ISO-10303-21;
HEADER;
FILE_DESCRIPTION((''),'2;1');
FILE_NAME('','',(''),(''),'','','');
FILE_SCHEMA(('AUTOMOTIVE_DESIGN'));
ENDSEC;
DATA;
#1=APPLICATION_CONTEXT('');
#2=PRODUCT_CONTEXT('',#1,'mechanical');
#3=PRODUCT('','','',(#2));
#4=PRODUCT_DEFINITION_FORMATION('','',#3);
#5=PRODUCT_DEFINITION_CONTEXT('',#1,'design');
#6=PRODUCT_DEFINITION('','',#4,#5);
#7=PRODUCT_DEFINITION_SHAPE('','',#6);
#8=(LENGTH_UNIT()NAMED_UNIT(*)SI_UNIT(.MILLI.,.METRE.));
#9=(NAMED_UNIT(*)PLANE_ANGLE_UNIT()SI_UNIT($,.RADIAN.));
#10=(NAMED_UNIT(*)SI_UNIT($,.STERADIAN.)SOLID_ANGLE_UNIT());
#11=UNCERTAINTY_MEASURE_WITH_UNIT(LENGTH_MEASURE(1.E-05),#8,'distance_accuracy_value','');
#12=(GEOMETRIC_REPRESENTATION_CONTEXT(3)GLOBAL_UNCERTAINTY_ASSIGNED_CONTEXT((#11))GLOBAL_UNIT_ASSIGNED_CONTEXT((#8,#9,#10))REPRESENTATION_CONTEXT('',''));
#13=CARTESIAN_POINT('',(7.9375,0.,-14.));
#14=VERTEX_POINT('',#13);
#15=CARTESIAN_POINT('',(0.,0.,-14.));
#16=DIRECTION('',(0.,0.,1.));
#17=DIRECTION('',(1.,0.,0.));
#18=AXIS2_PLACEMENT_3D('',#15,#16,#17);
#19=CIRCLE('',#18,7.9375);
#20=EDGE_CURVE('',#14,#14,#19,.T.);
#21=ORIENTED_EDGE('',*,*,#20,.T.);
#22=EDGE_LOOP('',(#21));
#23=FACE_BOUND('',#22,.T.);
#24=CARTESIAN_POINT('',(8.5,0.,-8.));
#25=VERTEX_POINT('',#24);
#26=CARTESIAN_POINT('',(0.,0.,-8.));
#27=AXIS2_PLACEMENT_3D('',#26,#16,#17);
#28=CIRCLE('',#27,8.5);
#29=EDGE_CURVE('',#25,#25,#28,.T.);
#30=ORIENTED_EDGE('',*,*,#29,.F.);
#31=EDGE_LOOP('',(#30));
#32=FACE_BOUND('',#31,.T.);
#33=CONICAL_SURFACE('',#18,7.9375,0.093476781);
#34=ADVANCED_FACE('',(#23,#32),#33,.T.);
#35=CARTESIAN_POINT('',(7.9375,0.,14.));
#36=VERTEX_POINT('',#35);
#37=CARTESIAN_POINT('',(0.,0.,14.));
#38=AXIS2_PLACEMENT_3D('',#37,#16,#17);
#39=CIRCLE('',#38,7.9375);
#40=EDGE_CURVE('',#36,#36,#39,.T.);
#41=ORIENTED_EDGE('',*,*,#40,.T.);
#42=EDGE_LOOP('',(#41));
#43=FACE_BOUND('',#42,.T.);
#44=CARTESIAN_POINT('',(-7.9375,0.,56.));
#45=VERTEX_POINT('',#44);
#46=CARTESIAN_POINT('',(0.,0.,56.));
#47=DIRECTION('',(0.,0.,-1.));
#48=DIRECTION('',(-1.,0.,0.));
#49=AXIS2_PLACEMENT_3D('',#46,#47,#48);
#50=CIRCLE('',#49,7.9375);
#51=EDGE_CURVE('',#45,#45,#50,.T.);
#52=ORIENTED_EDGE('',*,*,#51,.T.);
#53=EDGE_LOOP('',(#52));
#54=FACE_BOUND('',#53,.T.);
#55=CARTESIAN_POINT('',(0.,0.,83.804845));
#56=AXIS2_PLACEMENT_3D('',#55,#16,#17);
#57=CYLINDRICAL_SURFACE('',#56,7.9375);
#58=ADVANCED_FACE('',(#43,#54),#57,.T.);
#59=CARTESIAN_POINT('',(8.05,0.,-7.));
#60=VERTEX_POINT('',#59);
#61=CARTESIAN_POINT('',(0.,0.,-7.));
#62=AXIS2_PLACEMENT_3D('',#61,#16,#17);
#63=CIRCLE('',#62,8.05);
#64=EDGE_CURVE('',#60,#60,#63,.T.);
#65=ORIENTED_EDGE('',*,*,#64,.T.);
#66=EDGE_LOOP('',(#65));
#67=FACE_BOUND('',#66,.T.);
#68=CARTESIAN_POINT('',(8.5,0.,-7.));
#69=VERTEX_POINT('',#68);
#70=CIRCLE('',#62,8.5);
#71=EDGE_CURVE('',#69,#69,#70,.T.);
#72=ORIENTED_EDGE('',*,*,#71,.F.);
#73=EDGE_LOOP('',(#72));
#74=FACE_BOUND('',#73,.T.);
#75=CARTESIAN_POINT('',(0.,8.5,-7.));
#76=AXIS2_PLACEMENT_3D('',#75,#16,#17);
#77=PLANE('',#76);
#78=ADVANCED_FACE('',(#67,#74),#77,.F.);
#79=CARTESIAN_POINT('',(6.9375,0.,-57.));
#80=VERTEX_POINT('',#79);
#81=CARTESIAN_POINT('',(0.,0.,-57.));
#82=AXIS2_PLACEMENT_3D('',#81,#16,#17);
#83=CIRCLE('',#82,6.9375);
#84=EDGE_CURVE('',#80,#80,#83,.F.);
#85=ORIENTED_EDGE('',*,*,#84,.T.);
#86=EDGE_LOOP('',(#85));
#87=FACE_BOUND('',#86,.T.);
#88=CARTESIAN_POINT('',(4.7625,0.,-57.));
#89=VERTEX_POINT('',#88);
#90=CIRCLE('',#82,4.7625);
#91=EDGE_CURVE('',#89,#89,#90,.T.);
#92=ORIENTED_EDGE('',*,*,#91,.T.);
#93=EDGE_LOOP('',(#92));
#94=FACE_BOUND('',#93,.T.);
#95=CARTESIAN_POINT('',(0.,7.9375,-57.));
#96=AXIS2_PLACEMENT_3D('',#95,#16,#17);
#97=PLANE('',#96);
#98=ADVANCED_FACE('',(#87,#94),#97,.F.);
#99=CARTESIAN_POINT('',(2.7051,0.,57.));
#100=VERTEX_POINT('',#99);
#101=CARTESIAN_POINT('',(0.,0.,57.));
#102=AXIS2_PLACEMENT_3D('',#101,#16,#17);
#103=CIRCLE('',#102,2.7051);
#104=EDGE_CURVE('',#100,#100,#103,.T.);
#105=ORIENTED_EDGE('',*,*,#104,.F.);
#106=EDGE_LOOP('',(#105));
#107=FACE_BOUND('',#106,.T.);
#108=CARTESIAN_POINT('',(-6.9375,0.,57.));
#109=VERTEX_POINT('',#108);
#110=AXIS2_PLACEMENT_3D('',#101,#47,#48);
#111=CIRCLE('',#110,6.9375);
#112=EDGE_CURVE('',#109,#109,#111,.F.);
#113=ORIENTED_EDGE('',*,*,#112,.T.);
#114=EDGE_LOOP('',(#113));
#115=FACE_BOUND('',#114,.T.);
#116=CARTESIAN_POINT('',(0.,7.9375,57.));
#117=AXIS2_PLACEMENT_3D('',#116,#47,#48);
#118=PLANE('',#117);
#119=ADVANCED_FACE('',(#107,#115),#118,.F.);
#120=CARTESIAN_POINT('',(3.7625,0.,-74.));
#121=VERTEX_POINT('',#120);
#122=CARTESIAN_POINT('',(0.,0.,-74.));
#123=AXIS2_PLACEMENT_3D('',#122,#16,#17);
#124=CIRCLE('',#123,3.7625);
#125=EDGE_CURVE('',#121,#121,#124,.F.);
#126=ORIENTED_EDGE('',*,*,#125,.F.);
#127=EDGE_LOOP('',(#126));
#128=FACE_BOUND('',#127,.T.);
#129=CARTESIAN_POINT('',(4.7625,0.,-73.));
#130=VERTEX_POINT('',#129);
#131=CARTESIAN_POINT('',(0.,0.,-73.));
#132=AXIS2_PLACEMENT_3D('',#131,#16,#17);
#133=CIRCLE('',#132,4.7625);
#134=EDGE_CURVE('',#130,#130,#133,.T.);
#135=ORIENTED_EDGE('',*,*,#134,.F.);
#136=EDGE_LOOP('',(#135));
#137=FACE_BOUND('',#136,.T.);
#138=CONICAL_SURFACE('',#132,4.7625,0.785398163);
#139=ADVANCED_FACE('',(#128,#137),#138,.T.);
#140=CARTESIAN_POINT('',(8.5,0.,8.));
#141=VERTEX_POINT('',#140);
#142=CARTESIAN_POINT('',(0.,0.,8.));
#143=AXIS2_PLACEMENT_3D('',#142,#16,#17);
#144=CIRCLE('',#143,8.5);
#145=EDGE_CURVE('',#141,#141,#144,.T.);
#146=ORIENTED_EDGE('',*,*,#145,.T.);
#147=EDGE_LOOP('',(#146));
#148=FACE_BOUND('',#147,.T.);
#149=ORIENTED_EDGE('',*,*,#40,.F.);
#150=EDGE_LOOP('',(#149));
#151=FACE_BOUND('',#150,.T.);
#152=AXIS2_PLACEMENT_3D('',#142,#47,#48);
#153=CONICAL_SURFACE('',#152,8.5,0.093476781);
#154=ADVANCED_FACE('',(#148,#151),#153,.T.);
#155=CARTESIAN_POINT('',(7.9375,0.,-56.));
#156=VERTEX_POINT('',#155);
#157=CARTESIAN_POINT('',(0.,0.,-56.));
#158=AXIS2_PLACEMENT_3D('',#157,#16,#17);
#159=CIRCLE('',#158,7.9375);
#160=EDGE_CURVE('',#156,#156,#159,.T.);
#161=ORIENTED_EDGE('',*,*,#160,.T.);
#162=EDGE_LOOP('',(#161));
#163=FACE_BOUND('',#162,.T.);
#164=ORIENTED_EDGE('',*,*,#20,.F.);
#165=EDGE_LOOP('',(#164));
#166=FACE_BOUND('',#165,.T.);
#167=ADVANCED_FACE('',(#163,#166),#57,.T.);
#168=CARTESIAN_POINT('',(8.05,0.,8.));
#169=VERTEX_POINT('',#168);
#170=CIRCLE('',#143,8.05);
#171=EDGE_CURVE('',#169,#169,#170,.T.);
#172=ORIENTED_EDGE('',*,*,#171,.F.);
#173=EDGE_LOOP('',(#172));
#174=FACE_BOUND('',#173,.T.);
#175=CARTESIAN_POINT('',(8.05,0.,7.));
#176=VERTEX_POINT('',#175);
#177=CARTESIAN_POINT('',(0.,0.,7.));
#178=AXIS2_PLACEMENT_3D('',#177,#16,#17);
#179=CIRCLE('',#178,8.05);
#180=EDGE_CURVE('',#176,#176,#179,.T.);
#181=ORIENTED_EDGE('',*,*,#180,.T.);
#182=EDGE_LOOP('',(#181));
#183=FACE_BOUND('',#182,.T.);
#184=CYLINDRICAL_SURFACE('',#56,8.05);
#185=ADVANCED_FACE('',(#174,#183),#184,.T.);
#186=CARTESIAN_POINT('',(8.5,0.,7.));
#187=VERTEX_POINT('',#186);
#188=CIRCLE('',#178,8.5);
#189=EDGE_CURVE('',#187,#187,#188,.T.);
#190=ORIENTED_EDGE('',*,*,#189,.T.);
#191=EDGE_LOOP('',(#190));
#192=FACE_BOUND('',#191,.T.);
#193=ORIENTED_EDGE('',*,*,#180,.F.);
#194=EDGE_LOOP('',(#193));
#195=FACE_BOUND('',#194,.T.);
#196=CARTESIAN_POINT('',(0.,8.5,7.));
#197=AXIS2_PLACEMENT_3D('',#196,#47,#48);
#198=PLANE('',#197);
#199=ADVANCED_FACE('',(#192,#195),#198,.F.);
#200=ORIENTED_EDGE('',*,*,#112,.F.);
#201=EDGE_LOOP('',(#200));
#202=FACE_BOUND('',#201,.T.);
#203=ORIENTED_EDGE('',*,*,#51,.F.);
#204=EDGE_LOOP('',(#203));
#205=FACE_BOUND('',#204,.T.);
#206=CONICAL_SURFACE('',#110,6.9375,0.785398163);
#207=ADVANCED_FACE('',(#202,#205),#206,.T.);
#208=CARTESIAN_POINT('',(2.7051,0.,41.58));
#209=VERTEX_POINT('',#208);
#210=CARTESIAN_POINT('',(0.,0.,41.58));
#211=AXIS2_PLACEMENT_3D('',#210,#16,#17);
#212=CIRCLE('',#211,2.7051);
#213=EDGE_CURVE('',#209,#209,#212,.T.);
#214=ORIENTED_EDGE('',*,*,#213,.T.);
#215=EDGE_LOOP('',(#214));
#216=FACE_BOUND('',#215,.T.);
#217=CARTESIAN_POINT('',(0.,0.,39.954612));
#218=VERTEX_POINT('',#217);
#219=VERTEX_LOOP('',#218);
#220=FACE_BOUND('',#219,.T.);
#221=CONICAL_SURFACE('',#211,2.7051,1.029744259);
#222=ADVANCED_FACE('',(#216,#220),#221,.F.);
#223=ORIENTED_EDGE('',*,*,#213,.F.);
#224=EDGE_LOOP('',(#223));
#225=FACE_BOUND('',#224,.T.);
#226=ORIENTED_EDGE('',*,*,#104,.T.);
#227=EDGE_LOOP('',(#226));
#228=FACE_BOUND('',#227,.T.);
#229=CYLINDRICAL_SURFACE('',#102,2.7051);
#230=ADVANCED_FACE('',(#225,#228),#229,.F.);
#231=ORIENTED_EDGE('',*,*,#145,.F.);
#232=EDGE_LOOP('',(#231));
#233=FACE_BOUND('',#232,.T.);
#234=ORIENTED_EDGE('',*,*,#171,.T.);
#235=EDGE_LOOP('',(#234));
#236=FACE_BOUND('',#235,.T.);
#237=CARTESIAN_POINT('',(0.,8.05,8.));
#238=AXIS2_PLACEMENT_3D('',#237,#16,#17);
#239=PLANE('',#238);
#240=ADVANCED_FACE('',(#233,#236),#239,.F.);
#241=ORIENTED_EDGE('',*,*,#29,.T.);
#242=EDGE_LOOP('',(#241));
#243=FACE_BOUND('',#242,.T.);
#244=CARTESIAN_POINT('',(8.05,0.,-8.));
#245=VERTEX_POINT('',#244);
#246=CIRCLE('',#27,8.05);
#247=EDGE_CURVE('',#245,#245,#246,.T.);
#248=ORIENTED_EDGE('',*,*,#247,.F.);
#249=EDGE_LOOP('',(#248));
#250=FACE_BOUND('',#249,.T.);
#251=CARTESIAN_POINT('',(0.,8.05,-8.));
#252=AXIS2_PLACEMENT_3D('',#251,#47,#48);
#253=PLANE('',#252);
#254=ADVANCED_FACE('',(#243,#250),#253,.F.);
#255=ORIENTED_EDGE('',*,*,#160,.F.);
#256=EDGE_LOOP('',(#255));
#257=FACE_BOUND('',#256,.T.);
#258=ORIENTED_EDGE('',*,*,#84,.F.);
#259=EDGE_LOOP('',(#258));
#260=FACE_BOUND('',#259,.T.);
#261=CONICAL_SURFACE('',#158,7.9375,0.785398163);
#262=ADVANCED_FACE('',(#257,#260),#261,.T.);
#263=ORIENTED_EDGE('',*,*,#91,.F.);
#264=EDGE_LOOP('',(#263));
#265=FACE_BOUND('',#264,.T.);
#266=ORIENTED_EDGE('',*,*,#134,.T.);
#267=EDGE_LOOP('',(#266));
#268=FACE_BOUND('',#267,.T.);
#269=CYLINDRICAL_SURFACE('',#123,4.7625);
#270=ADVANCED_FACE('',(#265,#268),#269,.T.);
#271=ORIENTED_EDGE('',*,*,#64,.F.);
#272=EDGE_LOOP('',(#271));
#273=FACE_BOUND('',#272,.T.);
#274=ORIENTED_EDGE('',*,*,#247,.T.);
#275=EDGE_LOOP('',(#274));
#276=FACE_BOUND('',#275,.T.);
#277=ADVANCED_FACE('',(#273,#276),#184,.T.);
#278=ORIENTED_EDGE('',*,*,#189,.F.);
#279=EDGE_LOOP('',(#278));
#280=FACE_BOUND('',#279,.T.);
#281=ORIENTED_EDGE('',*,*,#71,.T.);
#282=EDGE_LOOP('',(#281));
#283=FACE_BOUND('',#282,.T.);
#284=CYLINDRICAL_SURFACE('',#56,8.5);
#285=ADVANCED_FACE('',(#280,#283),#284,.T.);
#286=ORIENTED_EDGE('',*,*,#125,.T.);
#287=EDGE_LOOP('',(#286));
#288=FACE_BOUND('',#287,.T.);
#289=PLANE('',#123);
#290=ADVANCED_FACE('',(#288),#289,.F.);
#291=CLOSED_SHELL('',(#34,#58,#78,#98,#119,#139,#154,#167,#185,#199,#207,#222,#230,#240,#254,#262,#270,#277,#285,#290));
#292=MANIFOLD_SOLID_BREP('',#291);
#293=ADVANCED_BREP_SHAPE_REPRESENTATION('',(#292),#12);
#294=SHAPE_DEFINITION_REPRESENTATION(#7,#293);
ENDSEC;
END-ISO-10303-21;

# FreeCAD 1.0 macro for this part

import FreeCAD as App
import Part
import Sketcher
from FreeCAD import Vector
Q = App.Units.Quantity


def edges_at(feature, points):
    """Names of the edges that pass closest to the given points."""
    edges = feature.Shape.Edges
    near = lambda p: min(range(len(edges)), key=lambda i: edges[i].distToShape(Part.Vertex(*p))[0])
    return sorted({f"Edge{near(p) + 1}" for p in points})

doc = App.newDocument("Part")
body = doc.addObject("PartDesign::Body", "Body")

# Sketch on YZ plane
sketch1 = body.newObject("Sketcher::SketchObject", "Sketch")
sketch1.AttachmentSupport = (doc.getObject("YZ_Plane"), [""])
sketch1.MapMode = "FlatFace"
sketch1.addGeometry(Part.LineSegment(Vector(8.5, 8, 0), Vector(7.9375, 14, 0)), False)
sketch1.addGeometry(Part.LineSegment(Vector(7.9375, 14, 0), Vector(7.9375, 57, 0)), False)
sketch1.addGeometry(Part.LineSegment(Vector(7.9375, 57, 0), Vector(0, 57, 0)), False)
sketch1.addGeometry(Part.LineSegment(Vector(0, 57, 0), Vector(0, -57, 0)), False)
sketch1.addGeometry(Part.LineSegment(Vector(0, -57, 0), Vector(7.9375, -57, 0)), False)
sketch1.addGeometry(Part.LineSegment(Vector(7.9375, -57, 0), Vector(7.9375, -14, 0)), False)
sketch1.addGeometry(Part.LineSegment(Vector(7.9375, -14, 0), Vector(8.5, -8, 0)), False)
sketch1.addGeometry(Part.LineSegment(Vector(8.5, -8, 0), Vector(8.05, -8, 0)), False)
sketch1.addGeometry(Part.LineSegment(Vector(8.05, -8, 0), Vector(8.05, -7, 0)), False)
sketch1.addGeometry(Part.LineSegment(Vector(8.05, -7, 0), Vector(8.5, -7, 0)), False)
sketch1.addGeometry(Part.LineSegment(Vector(8.5, -7, 0), Vector(8.5, 7, 0)), False)
sketch1.addGeometry(Part.LineSegment(Vector(8.5, 7, 0), Vector(8.05, 7, 0)), False)
sketch1.addGeometry(Part.LineSegment(Vector(8.05, 7, 0), Vector(8.05, 8, 0)), False)
sketch1.addGeometry(Part.LineSegment(Vector(8.05, 8, 0), Vector(8.5, 8, 0)), False)
sketch1.addConstraint(Sketcher.Constraint("Coincident", 0, 2, 1, 1))
sketch1.addConstraint(Sketcher.Constraint("Coincident", 1, 2, 2, 1))
sketch1.addConstraint(Sketcher.Constraint("Coincident", 2, 2, 3, 1))
sketch1.addConstraint(Sketcher.Constraint("Coincident", 3, 2, 4, 1))
sketch1.addConstraint(Sketcher.Constraint("Coincident", 4, 2, 5, 1))
sketch1.addConstraint(Sketcher.Constraint("Coincident", 5, 2, 6, 1))
sketch1.addConstraint(Sketcher.Constraint("Coincident", 6, 2, 7, 1))
sketch1.addConstraint(Sketcher.Constraint("Coincident", 7, 2, 8, 1))
sketch1.addConstraint(Sketcher.Constraint("Coincident", 8, 2, 9, 1))
sketch1.addConstraint(Sketcher.Constraint("Coincident", 9, 2, 10, 1))
sketch1.addConstraint(Sketcher.Constraint("Coincident", 10, 2, 11, 1))
sketch1.addConstraint(Sketcher.Constraint("Coincident", 11, 2, 12, 1))
sketch1.addConstraint(Sketcher.Constraint("Coincident", 12, 2, 13, 1))
sketch1.addConstraint(Sketcher.Constraint("Coincident", 13, 2, 0, 1))
sketch1.addConstraint(Sketcher.Constraint("Vertical", 1))
sketch1.addConstraint(Sketcher.Constraint("Horizontal", 2))
sketch1.addConstraint(Sketcher.Constraint("Vertical", 3))
sketch1.addConstraint(Sketcher.Constraint("Horizontal", 4))
sketch1.addConstraint(Sketcher.Constraint("Vertical", 5))
sketch1.addConstraint(Sketcher.Constraint("Horizontal", 7))
sketch1.addConstraint(Sketcher.Constraint("Vertical", 8))
sketch1.addConstraint(Sketcher.Constraint("Horizontal", 9))
sketch1.addConstraint(Sketcher.Constraint("Vertical", 10))
sketch1.addConstraint(Sketcher.Constraint("Horizontal", 11))
sketch1.addConstraint(Sketcher.Constraint("Vertical", 12))
sketch1.addConstraint(Sketcher.Constraint("Horizontal", 13))
sketch1.addConstraint(Sketcher.Constraint("Symmetric", 2, 2, 3, 2, -1, 1))
sketch1.addConstraint(Sketcher.Constraint("Symmetric", 0, 2, 5, 2, -1))
sketch1.addConstraint(Sketcher.Constraint("Symmetric", 8, 2, 11, 2, -1))
sketch1.addConstraint(Sketcher.Constraint("Symmetric", 6, 2, 13, 2, -1))
sketch1.addConstraint(Sketcher.Constraint("Vertical", 6, 2, 9, 2))
sketch1.addConstraint(Sketcher.Constraint("DistanceY", 1, 1, 1, 2, Q("43 mm")))
sketch1.addConstraint(Sketcher.Constraint("DistanceY", 3, 2, 3, 1, Q("114 mm")))
sketch1.addConstraint(Sketcher.Constraint("DistanceY", 8, 1, 8, 2, Q("1 mm")))
sketch1.addConstraint(Sketcher.Constraint("DistanceY", 10, 1, 10, 2, Q("14 mm")))
sketch1.addConstraint(Sketcher.Constraint("DistanceX", 7, 2, 7, 1, Q("0.45 mm")))
sketch1.addConstraint(Sketcher.Constraint("DistanceX", -1, 1, 6, 2, Q("8.5 mm")))
sketch1.addConstraint(Sketcher.Constraint("DistanceX", 2, 2, 2, 1, Q("7.9375 mm")))
revolution = body.newObject("PartDesign::Revolution", "Revolution")
revolution.Profile = sketch1
revolution.ReferenceAxis = (sketch1, ["V_Axis"])
revolution.Angle = 360
doc.recompute()

chamfer = body.newObject("PartDesign::Chamfer", "Chamfer")
chamfer.Base = (revolution, edges_at(revolution, [(0, -7.938, 57), (0, -7.938, -57)]))
chamfer.Size = 1

# Sketch on XY plane
sketch2 = body.newObject("Sketcher::SketchObject", "Sketch001")
sketch2.AttachmentSupport = (doc.getObject("XY_Plane"), [""])
sketch2.MapMode = "FlatFace"
sketch2.AttachmentOffset = App.Placement(Vector(0, 0, -57), App.Rotation())
sketch2.addGeometry(Part.Circle(Vector(0, 0, 0), Vector(0, 0, 1), 4.7625), False)
sketch2.addConstraint(Sketcher.Constraint("Coincident", 0, 3, -1, 1))
sketch2.addConstraint(Sketcher.Constraint("Diameter", 0, Q("9.525 mm")))
pad1 = body.newObject("PartDesign::Pad", "Pad")
pad1.Profile = sketch2
pad1.Length = 17
pad1.Reversed = True
doc.recompute()

chamfer2 = body.newObject("PartDesign::Chamfer", "Chamfer001")
chamfer2.Base = (pad1, edges_at(pad1, [(-4.763, 0, -74)]))
chamfer2.Size = 1

# Sketch on XY plane
sketch3 = body.newObject("Sketcher::SketchObject", "Sketch002")
sketch3.AttachmentSupport = (doc.getObject("XY_Plane"), [""])
sketch3.MapMode = "FlatFace"
sketch3.AttachmentOffset = App.Placement(Vector(0, 0, 57), App.Rotation())
sketch3.addGeometry(Part.Circle(Vector(0, 0, 0), Vector(0, 0, 1), 2.7051), False)
sketch3.addConstraint(Sketcher.Constraint("Coincident", 0, 3, -1, 1))
sketch3.addConstraint(Sketcher.Constraint("Diameter", 0, Q("5.4102 mm")))
doc.recompute()
hole = body.newObject("PartDesign::Hole", "Hole")
hole.Profile = sketch3
hole.ThreadType = "None"
hole.Diameter = 5.4102
hole.DepthType = "Dimension"
hole.Depth = 15.42
hole.DrillPoint = "Angled"
hole.DrillPointAngle = 118

doc.recompute()
